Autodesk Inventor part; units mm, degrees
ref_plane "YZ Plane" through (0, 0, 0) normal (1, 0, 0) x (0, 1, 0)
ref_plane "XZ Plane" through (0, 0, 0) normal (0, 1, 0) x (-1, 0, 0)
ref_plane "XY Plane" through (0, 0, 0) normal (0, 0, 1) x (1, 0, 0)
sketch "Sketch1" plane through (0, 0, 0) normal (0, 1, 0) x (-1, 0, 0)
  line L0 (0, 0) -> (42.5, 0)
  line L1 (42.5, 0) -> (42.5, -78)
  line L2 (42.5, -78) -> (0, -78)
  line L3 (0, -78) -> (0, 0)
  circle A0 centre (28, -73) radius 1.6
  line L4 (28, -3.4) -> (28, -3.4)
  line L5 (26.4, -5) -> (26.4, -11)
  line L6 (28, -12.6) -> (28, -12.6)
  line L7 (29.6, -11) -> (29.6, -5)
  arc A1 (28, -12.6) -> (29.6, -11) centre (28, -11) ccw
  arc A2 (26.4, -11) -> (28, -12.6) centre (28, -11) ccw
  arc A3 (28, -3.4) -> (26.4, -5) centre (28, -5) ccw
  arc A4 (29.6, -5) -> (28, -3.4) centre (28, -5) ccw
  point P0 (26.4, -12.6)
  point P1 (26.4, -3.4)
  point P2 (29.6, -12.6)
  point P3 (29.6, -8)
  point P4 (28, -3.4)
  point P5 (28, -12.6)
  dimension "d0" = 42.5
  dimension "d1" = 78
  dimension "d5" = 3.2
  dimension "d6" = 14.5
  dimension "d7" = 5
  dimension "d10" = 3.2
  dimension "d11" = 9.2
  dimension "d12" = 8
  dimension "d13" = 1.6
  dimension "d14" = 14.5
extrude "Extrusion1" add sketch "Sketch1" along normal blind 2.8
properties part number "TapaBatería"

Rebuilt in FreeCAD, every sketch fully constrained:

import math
import FreeCAD as App
import Part
import Sketcher
from FreeCAD import Vector


def add_polygon(sketch, points):
    """Adds a closed chain of lines whose ends are joined by coincident constraints."""
    first, n = sketch.GeometryCount, len(points)
    for a, b in zip(points, points[1:] + points[:1]):
        sketch.addGeometry(Part.LineSegment(App.Vector(*a, 0), App.Vector(*b, 0)), False)
    for i in range(n):
        sketch.addConstraint(Sketcher.Constraint("Coincident", first + i, 2, first + (i + 1) % n, 1))

doc = App.newDocument("Part")
params = doc.addObject("Spreadsheet::Sheet", "Params")
for row, (alias, value) in enumerate([
    ("sketch1_diameter", "3.2 mm"),
    ("sketch1_height", "78 mm"),
    ("sketch1_width", "42.5 mm"),
    ("sketch1_height2", "6 mm"),
    ("pad1_length", "2.8 mm"),
], start=1):
    params.set(f"A{row}", alias)
    params.set(f"B{row}", "=" + value)
    params.setAlias(f"B{row}", alias)

body = doc.addObject("PartDesign::Body", "Body")

sketch1 = body.newObject("Sketcher::SketchObject", "Sketch")
sketch1.AttachmentSupport = (doc.getObject("XZ_Plane"), [""])
sketch1.MapMode = "FlatFace"
add_polygon(sketch1, [(-42.5, 0), (0, 0), (0, -78), (-42.5, -78)])
sketch1.addGeometry(Part.Circle(Vector(-28, -73, 0), Vector(0, 0, 1), 1.6), False)
sketch1.addGeometry(Part.LineSegment(Vector(-26.4, -11, 0), Vector(-26.4, -5, 0)), False)
sketch1.addGeometry(Part.ArcOfCircle(Part.Circle(Vector(-28, -5, 0), Vector(0, 0, 1), 1.6), math.radians(0), math.radians(180)), False)
sketch1.addGeometry(Part.LineSegment(Vector(-29.6, -5, 0), Vector(-29.6, -11, 0)), False)
sketch1.addGeometry(Part.ArcOfCircle(Part.Circle(Vector(-28, -11, 0), Vector(0, 0, 1), 1.6), math.radians(180), math.radians(360)), False)
sketch1.addConstraint(Sketcher.Constraint("Tangent", 5, 2, 6, 1))
sketch1.addConstraint(Sketcher.Constraint("Tangent", 6, 2, 7, 1))
sketch1.addConstraint(Sketcher.Constraint("Tangent", 7, 2, 8, 1))
sketch1.addConstraint(Sketcher.Constraint("Tangent", 8, 2, 5, 1))
sketch1.addConstraint(Sketcher.Constraint("Horizontal", 0))
sketch1.addConstraint(Sketcher.Constraint("Vertical", 1))
sketch1.addConstraint(Sketcher.Constraint("Horizontal", 2))
sketch1.addConstraint(Sketcher.Constraint("Vertical", 3))
sketch1.addConstraint(Sketcher.Constraint("Vertical", 5))
sketch1.addConstraint(Sketcher.Constraint("Vertical", 7))
sketch1.addConstraint(Sketcher.Constraint("Coincident", 0, 2, -1, 1))
sketch1.addConstraint(Sketcher.Constraint("Equal", 4, 6))
sketch1.addConstraint(Sketcher.Constraint("Vertical", 4, 3, 6, 3))
sketch1.addConstraint(Sketcher.Constraint("Diameter", 4, 3.2))
sketch1.addConstraint(Sketcher.Constraint("DistanceY", 1, 2, 1, 1, 78.0))
sketch1.addConstraint(Sketcher.Constraint("DistanceX", 0, 1, 0, 2, 42.5))
sketch1.addConstraint(Sketcher.Constraint("DistanceY", 6, 3, -1, 1, 5.0))
sketch1.addConstraint(Sketcher.Constraint("DistanceY", 1, 2, 4, 3, 5.0))
sketch1.addConstraint(Sketcher.Constraint("DistanceX", 2, 2, 4, 3, 14.5))
sketch1.addConstraint(Sketcher.Constraint("DistanceY", 5, 1, 5, 2, 6.0))
sketch1.setExpression("Constraints[17]", "Params.sketch1_diameter")
sketch1.setExpression("Constraints[18]", "Params.sketch1_height")
sketch1.setExpression("Constraints[19]", "Params.sketch1_width")
sketch1.setExpression("Constraints[23]", "Params.sketch1_height2")
pad1 = body.newObject("PartDesign::Pad", "Pad")
pad1.Profile = sketch1
pad1.setExpression("Length", "Params.pad1_length")
pad1.Reversed = True

doc.recompute()
